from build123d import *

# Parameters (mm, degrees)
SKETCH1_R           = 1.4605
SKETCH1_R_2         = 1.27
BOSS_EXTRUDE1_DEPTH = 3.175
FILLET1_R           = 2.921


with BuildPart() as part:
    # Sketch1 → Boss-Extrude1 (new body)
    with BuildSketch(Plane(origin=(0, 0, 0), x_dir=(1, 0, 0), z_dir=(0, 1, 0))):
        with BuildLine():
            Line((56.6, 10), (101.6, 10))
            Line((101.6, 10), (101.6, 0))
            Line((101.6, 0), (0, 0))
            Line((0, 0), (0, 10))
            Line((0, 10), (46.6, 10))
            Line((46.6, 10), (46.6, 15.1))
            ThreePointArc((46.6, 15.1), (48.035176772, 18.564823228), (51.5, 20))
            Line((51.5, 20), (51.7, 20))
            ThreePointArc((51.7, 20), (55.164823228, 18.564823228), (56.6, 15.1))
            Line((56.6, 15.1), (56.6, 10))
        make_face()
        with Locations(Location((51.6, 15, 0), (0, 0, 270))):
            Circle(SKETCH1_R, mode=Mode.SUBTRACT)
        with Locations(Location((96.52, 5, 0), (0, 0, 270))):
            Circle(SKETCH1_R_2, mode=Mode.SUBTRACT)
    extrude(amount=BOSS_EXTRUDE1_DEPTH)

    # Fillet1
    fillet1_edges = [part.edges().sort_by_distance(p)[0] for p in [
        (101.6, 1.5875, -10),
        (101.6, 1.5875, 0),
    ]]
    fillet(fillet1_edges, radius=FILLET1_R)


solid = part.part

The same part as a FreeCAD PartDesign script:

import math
import FreeCAD as App
import Part
import Sketcher

V = App.Vector
Q = App.Units.Quantity


def edges_at(feature, points):
    """Names of the edges that pass closest to the given points."""
    edges = feature.Shape.Edges
    near = lambda p: min(range(len(edges)), key=lambda i: edges[i].distToShape(Part.Vertex(*p))[0])
    return sorted({f"Edge{near(p) + 1}" for p in points})

doc = App.newDocument("Part")
body = doc.addObject("PartDesign::Body", "Body")

# Sketch on XZ plane
sketch1 = doc.addObject("Sketcher::SketchObject", "Sketch")
body.addObject(sketch1)
sketch1.AttachmentSupport = (doc.XZ_Plane, [""])
sketch1.MapMode = "FlatFace"
sketch1.addGeometry(Part.LineSegment(V(101.6, -10, 0), V(56.6, -10, 0)), False)
sketch1.addGeometry(Part.LineSegment(V(56.6, -10, 0), V(56.6, -15.1, 0)), False)
sketch1.addGeometry(Part.ArcOfCircle(Part.Circle(V(51.7, -15.1, 0), V(0, 0, 1), 4.9), math.radians(-90), math.radians(0)), False)
sketch1.addGeometry(Part.LineSegment(V(51.7, -20, 0), V(51.5, -20, 0)), False)
sketch1.addGeometry(Part.ArcOfCircle(Part.Circle(V(51.5, -15.1, 0), V(0, 0, 1), 4.9), math.radians(180), math.radians(270)), False)
sketch1.addGeometry(Part.LineSegment(V(46.6, -15.1, 0), V(46.6, -10, 0)), False)
sketch1.addGeometry(Part.LineSegment(V(46.6, -10, 0), V(0, -10, 0)), False)
sketch1.addGeometry(Part.LineSegment(V(0, -10, 0), V(0, 0, 0)), False)
sketch1.addGeometry(Part.LineSegment(V(0, 0, 0), V(101.6, 0, 0)), False)
sketch1.addGeometry(Part.LineSegment(V(101.6, 0, 0), V(101.6, -10, 0)), False)
sketch1.addGeometry(Part.Circle(V(96.52, -5, 0), V(0, 0, 1), 1.27), False)
sketch1.addGeometry(Part.Circle(V(51.6, -15, 0), V(0, 0, 1), 1.4605), False)
sketch1.addConstraint(Sketcher.Constraint("Coincident", 0, 2, 1, 1))
sketch1.addConstraint(Sketcher.Constraint("Tangent", 1, 2, 2, 2))
sketch1.addConstraint(Sketcher.Constraint("Tangent", 2, 1, 3, 1))
sketch1.addConstraint(Sketcher.Constraint("Tangent", 3, 2, 4, 2))
sketch1.addConstraint(Sketcher.Constraint("Tangent", 4, 1, 5, 1))
sketch1.addConstraint(Sketcher.Constraint("Coincident", 5, 2, 6, 1))
sketch1.addConstraint(Sketcher.Constraint("Coincident", 6, 2, 7, 1))
sketch1.addConstraint(Sketcher.Constraint("Coincident", 7, 2, 8, 1))
sketch1.addConstraint(Sketcher.Constraint("Coincident", 8, 2, 9, 1))
sketch1.addConstraint(Sketcher.Constraint("Coincident", 9, 2, 0, 1))
sketch1.addConstraint(Sketcher.Constraint("Horizontal", 0))
sketch1.addConstraint(Sketcher.Constraint("Vertical", 1))
sketch1.addConstraint(Sketcher.Constraint("Horizontal", 3))
sketch1.addConstraint(Sketcher.Constraint("Vertical", 5))
sketch1.addConstraint(Sketcher.Constraint("Horizontal", 6))
sketch1.addConstraint(Sketcher.Constraint("Vertical", 7))
sketch1.addConstraint(Sketcher.Constraint("Horizontal", 8))
sketch1.addConstraint(Sketcher.Constraint("Vertical", 9))
sketch1.addConstraint(Sketcher.Constraint("Coincident", 7, 2, -1, 1))
sketch1.addConstraint(Sketcher.Constraint("Equal", 2, 4))
sketch1.addConstraint(Sketcher.Constraint("Horizontal", 0, 2, 5, 2))
sketch1.addConstraint(Sketcher.Constraint("Radius", 2, Q("4.9 mm")))
sketch1.addConstraint(Sketcher.Constraint("Diameter", 10, Q("2.54 mm")))
sketch1.addConstraint(Sketcher.Constraint("DistanceX", 0, 2, 0, 1, Q("45 mm")))
sketch1.addConstraint(Sketcher.Constraint("DistanceY", 7, 1, 7, 2, Q("10 mm")))
sketch1.addConstraint(Sketcher.Constraint("Diameter", 11, Q("2.921 mm")))
sketch1.addConstraint(Sketcher.Constraint("DistanceX", 3, 2, 3, 1, Q("0.2 mm")))
sketch1.addConstraint(Sketcher.Constraint("DistanceX", 6, 2, 6, 1, Q("46.6 mm")))
sketch1.addConstraint(Sketcher.Constraint("DistanceY", 1, 2, 1, 1, Q("5.1 mm")))
sketch1.addConstraint(Sketcher.Constraint("DistanceY", 10, 3, -1, 1, Q("5 mm")))
sketch1.addConstraint(Sketcher.Constraint("DistanceY", 11, 3, -1, 1, Q("15 mm")))
sketch1.addConstraint(Sketcher.Constraint("DistanceX", 11, 3, 0, 2, Q("5 mm")))
sketch1.addConstraint(Sketcher.Constraint("DistanceX", -1, 1, 10, 3, Q("96.52 mm")))
pad1 = doc.addObject("PartDesign::Pad", "Pad")
body.addObject(pad1)
pad1.Profile = sketch1
pad1.Length = 3.175
pad1.Reversed = True
doc.recompute()

fillet = doc.addObject("PartDesign::Fillet", "Fillet")
body.addObject(fillet)
fillet.Base = (pad1, edges_at(pad1, [(101.6, 1.587, -10), (101.6, 1.587, 0)]))
fillet.Radius = 2.921

doc.recompute()
